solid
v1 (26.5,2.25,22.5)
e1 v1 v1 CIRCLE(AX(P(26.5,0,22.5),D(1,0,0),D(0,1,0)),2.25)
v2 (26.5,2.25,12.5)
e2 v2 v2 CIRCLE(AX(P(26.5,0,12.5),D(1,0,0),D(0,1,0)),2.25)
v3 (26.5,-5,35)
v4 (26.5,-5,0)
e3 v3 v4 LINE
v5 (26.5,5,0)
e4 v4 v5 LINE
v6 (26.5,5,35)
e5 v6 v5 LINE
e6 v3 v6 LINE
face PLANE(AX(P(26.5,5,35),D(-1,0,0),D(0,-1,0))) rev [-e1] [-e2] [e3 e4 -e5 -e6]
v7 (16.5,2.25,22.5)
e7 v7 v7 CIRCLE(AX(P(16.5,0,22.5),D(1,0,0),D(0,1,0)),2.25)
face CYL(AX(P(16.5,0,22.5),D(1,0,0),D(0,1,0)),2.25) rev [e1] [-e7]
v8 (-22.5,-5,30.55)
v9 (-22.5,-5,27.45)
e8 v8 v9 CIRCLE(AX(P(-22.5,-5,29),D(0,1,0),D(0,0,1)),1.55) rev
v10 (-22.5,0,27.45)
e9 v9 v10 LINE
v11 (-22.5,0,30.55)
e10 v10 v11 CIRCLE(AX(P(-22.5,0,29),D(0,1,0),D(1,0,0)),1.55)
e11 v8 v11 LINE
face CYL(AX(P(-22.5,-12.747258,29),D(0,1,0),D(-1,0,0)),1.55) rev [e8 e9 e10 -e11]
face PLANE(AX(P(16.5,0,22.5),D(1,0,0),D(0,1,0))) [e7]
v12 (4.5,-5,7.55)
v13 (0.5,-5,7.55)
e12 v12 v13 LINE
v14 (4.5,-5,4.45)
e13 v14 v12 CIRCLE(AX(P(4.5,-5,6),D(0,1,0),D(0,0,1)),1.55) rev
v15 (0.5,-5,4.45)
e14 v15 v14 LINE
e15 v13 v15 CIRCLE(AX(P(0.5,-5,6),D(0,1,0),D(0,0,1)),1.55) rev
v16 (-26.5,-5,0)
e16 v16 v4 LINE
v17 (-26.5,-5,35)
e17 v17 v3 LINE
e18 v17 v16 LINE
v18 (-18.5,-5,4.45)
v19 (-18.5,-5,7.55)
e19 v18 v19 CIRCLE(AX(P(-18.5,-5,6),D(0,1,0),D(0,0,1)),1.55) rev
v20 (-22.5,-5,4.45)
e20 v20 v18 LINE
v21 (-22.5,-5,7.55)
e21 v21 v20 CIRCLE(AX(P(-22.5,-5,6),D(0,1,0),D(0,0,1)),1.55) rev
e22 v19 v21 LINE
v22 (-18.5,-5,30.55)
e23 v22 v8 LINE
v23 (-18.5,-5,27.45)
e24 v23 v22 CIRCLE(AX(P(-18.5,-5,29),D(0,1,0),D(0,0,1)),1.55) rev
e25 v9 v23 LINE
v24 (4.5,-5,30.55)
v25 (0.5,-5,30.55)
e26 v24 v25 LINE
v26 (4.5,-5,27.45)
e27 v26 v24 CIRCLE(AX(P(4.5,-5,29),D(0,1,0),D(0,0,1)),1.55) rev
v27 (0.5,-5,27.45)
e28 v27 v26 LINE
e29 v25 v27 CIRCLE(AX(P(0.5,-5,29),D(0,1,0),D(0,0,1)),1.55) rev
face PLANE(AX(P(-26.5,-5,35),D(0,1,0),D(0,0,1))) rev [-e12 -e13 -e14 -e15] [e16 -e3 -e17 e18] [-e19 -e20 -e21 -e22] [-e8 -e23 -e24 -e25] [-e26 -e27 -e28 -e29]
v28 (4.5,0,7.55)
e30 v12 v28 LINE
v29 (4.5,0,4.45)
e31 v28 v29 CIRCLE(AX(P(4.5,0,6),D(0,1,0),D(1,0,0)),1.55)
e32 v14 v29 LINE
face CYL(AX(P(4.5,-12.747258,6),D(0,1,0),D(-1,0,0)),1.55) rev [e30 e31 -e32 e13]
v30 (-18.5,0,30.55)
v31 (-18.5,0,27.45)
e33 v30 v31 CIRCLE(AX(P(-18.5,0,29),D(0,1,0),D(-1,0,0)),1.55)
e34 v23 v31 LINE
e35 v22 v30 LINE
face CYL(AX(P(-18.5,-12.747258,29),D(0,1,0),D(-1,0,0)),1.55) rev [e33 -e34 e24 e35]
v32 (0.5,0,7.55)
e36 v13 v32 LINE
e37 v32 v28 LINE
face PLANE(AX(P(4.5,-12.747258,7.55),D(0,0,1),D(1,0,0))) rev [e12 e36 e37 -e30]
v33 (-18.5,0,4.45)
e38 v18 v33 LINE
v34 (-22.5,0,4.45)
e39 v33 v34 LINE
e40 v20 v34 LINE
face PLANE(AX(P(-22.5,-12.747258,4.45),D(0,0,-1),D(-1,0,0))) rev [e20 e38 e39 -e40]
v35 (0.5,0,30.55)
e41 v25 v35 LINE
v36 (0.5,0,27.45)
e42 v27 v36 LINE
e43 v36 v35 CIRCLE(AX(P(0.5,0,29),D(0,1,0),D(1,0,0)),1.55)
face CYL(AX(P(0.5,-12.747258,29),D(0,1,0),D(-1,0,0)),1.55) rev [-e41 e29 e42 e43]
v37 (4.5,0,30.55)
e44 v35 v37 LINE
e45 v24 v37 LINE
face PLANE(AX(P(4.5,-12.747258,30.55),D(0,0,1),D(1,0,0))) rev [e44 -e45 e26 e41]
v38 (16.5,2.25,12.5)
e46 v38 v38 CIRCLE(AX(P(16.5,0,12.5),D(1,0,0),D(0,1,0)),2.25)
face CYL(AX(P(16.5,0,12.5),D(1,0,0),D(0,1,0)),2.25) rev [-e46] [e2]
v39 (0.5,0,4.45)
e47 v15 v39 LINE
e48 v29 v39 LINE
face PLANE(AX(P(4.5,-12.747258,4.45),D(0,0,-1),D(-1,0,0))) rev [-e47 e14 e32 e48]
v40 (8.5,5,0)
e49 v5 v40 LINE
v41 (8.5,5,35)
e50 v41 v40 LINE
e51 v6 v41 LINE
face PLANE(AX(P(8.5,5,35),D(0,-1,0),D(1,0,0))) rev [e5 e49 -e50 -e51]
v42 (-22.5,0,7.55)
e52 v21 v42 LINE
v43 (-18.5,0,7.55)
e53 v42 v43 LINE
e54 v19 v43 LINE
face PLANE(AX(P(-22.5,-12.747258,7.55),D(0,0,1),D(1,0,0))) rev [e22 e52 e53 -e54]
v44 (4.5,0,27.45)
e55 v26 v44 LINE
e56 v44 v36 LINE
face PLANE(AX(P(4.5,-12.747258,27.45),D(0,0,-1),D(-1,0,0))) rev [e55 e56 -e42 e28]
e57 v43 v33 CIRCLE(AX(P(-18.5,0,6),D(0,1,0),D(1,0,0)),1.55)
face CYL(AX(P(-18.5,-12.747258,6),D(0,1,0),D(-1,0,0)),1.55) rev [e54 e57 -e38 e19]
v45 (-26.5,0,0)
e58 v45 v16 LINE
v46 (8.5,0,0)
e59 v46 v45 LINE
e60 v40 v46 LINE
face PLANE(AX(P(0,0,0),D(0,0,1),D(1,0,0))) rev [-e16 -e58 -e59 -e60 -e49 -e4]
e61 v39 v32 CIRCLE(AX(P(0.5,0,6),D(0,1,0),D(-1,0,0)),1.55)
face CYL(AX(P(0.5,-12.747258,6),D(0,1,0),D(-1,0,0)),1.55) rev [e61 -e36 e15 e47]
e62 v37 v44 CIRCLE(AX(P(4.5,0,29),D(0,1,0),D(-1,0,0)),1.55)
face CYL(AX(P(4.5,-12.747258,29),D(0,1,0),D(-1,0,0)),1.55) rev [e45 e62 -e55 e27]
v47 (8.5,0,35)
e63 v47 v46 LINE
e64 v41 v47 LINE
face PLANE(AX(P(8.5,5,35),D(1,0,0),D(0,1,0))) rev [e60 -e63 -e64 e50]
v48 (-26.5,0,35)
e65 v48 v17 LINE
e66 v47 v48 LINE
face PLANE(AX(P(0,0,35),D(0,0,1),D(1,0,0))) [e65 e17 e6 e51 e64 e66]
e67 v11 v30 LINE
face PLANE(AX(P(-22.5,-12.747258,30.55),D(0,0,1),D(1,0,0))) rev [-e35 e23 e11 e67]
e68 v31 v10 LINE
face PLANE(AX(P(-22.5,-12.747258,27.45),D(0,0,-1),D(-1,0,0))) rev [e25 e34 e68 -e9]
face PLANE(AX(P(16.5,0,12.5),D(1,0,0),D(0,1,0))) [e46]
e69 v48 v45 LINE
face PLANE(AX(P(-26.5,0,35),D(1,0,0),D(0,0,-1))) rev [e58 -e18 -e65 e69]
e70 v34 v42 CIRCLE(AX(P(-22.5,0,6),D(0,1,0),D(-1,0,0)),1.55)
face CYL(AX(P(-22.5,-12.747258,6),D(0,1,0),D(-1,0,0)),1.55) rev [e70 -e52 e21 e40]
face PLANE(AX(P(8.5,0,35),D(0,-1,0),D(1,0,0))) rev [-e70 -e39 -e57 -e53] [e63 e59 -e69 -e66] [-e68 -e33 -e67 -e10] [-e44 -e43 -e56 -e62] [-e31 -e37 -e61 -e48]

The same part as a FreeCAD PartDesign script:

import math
import FreeCAD as App
import Part
import Sketcher

doc = App.newDocument("Part")
body = doc.addObject("PartDesign::Body", "Body")

sketch1 = doc.addObject("Sketcher::SketchObject", "Sketch")
body.addObject(sketch1)
sketch1.AttachmentSupport = (doc.XY_Plane, [""])
sketch1.MapMode = "FlatFace"
sketch1.addGeometry([
    Part.LineSegment(App.Vector(8, 5, 0), App.Vector(8, 0, 0)),
    Part.LineSegment(App.Vector(8, 0, 0), App.Vector(-26, 0, 0)),
    Part.LineSegment(App.Vector(-26, 0, 0), App.Vector(-26, -5, 0)),
    Part.LineSegment(App.Vector(-26, -5, 0), App.Vector(26, -5, 0)),
    Part.LineSegment(App.Vector(26, -5, 0), App.Vector(26, 5, 0)),
    Part.LineSegment(App.Vector(26, 5, 0), App.Vector(8, 5, 0)),
], False)
sketch1.addConstraint([
    Sketcher.Constraint("Coincident", 0, 2, 1, 1),
    Sketcher.Constraint("Coincident", 1, 2, 2, 1),
    Sketcher.Constraint("Coincident", 2, 2, 3, 1),
    Sketcher.Constraint("Coincident", 3, 2, 4, 1),
    Sketcher.Constraint("Coincident", 4, 2, 5, 1),
    Sketcher.Constraint("Coincident", 5, 2, 0, 1),
    Sketcher.Constraint("Vertical", 0),
    Sketcher.Constraint("Horizontal", 1),
    Sketcher.Constraint("Vertical", 2),
    Sketcher.Constraint("Horizontal", 3),
    Sketcher.Constraint("Vertical", 4),
    Sketcher.Constraint("Horizontal", 5),
    Sketcher.Constraint("Symmetric", 2, 2, 4, 2, -1, 1),
    Sketcher.Constraint("PointOnObject", 0, 2, -1),
    Sketcher.Constraint("DistanceX", 1, 2, 1, 1, 35.0),
    Sketcher.Constraint("DistanceX", 3, 1, 3, 2, 53.0),
    Sketcher.Constraint("DistanceY", 0, 2, 0, 1, 5.0),
])
pad1 = doc.addObject("PartDesign::Pad", "Pad")
body.addObject(pad1)
pad1.Profile = sketch1
pad1.Length = 35

sketch2 = doc.addObject("Sketcher::SketchObject", "Sketch001")
body.addObject(sketch2)
sketch2.AttachmentSupport = (doc.YZ_Plane, [""])
sketch2.MapMode = "FlatFace"
sketch2.AttachmentOffset = App.Placement(App.Vector(0, 0, 26.5), App.Rotation())
sketch2.addGeometry([
    Part.Circle(App.Vector(0, 22.5, 0), App.Vector(0, 0, 1), 2.2),
    Part.Circle(App.Vector(0, 12.5, 0), App.Vector(0, 0, 1), 2.2),
], False)
sketch2.addConstraint([
    Sketcher.Constraint("Equal", 0, 1),
    Sketcher.Constraint("PointOnObject", 0, 3, -2),
    Sketcher.Constraint("PointOnObject", 1, 3, -2),
    Sketcher.Constraint("Diameter", 0, 4.5),
    Sketcher.Constraint("DistanceY", 1, 3, 0, 3, 10.0),
    Sketcher.Constraint("DistanceY", -1, 1, 0, 3, 22.5),
])
pocket1 = doc.addObject("PartDesign::Pocket", "Pocket")
body.addObject(pocket1)
pocket1.Profile = sketch2
pocket1.Length = 10

sketch3 = doc.addObject("Sketcher::SketchObject", "Sketch002")
body.addObject(sketch3)
sketch3.AttachmentSupport = (doc.XZ_Plane, [""])
sketch3.MapMode = "FlatFace"
sketch3.addGeometry([
    Part.LineSegment(App.Vector(-22.5, 7.5, 0), App.Vector(-18.5, 7.5, 0)),
    Part.ArcOfCircle(Part.Circle(App.Vector(-18.5, 6, 0), App.Vector(0, 0, 1), 1.6), math.radians(-90), math.radians(90)),
    Part.LineSegment(App.Vector(-18.5, 4.5, 0), App.Vector(-22.5, 4.5, 0)),
    Part.ArcOfCircle(Part.Circle(App.Vector(-22.5, 6, 0), App.Vector(0, 0, 1), 1.6), math.radians(90), math.radians(270)),
    Part.LineSegment(App.Vector(-22.5, 30.6, 0), App.Vector(-18.5, 30.6, 0)),
    Part.ArcOfCircle(Part.Circle(App.Vector(-18.5, 29, 0), App.Vector(0, 0, 1), 1.6), math.radians(-90), math.radians(90)),
    Part.LineSegment(App.Vector(-18.5, 27.4, 0), App.Vector(-22.5, 27.4, 0)),
    Part.ArcOfCircle(Part.Circle(App.Vector(-22.5, 29, 0), App.Vector(0, 0, 1), 1.6), math.radians(90), math.radians(270)),
    Part.LineSegment(App.Vector(4.5, 4.5, 0), App.Vector(0.5, 4.5, 0)),
    Part.ArcOfCircle(Part.Circle(App.Vector(0.5, 6, 0), App.Vector(0, 0, 1), 1.6), math.radians(90), math.radians(270)),
    Part.LineSegment(App.Vector(0.5, 7.5, 0), App.Vector(4.5, 7.5, 0)),
    Part.ArcOfCircle(Part.Circle(App.Vector(4.5, 6, 0), App.Vector(0, 0, 1), 1.6), math.radians(-90), math.radians(90)),
    Part.LineSegment(App.Vector(4.5, 27.4, 0), App.Vector(0.5, 27.4, 0)),
    Part.ArcOfCircle(Part.Circle(App.Vector(0.5, 29, 0), App.Vector(0, 0, 1), 1.6), math.radians(90), math.radians(270)),
    Part.LineSegment(App.Vector(0.5, 30.6, 0), App.Vector(4.5, 30.6, 0)),
    Part.ArcOfCircle(Part.Circle(App.Vector(4.5, 29, 0), App.Vector(0, 0, 1), 1.6), math.radians(-90), math.radians(90)),
], False)
sketch3.addConstraint([
    Sketcher.Constraint("Tangent", 0, 2, 1, 2),
    Sketcher.Constraint("Tangent", 1, 1, 2, 1),
    Sketcher.Constraint("Tangent", 2, 2, 3, 2),
    Sketcher.Constraint("Tangent", 3, 1, 0, 1),
    Sketcher.Constraint("Tangent", 4, 2, 5, 2),
    Sketcher.Constraint("Tangent", 5, 1, 6, 1),
    Sketcher.Constraint("Tangent", 6, 2, 7, 2),
    Sketcher.Constraint("Tangent", 7, 1, 4, 1),
    Sketcher.Constraint("Tangent", 8, 2, 9, 2),
    Sketcher.Constraint("Tangent", 9, 1, 10, 1),
    Sketcher.Constraint("Tangent", 10, 2, 11, 2),
    Sketcher.Constraint("Tangent", 11, 1, 8, 1),
    Sketcher.Constraint("Tangent", 12, 2, 13, 2),
    Sketcher.Constraint("Tangent", 13, 1, 14, 1),
    Sketcher.Constraint("Tangent", 14, 2, 15, 2),
    Sketcher.Constraint("Tangent", 15, 1, 12, 1),
    Sketcher.Constraint("Horizontal", 0),
    Sketcher.Constraint("Horizontal", 2),
    Sketcher.Constraint("Horizontal", 4),
    Sketcher.Constraint("Horizontal", 6),
    Sketcher.Constraint("Horizontal", 8),
    Sketcher.Constraint("Horizontal", 10),
    Sketcher.Constraint("Horizontal", 12),
    Sketcher.Constraint("Horizontal", 14),
    Sketcher.Constraint("Equal", 3, 5),
    Sketcher.Constraint("Equal", 7, 9),
    Sketcher.Constraint("Equal", 11, 13),
    Sketcher.Constraint("Horizontal", 3, 3, 9, 3),
    Sketcher.Constraint("Horizontal", 7, 3, 13, 3),
    Sketcher.Constraint("Vertical", 1, 3, 5, 3),
    Sketcher.Constraint("Vertical", 3, 3, 7, 3),
    Sketcher.Constraint("Vertical", 9, 3, 13, 3),
    Sketcher.Constraint("Vertical", 11, 3, 15, 3),
    Sketcher.Constraint("Equal", 6, 8),
    Sketcher.Constraint("DistanceX", 0, 1, 0, 2, 4.0),
    Sketcher.Constraint("Radius", 1, 1.55),
    Sketcher.Constraint("DistanceY", -1, 1, 1, 3, 6.0),
    Sketcher.Constraint("DistanceY", -1, 1, 5, 3, 29.0),
    Sketcher.Constraint("DistanceX", 1, 3, 9, 3, 19.0),
    Sketcher.Constraint("DistanceX", 1, 3, -1, 1, 18.5),
])
pocket2 = doc.addObject("PartDesign::Pocket", "Pocket001")
body.addObject(pocket2)
pocket2.Profile = sketch3
pocket2.Length = 5
pocket2.Reversed = True

doc.recompute()
